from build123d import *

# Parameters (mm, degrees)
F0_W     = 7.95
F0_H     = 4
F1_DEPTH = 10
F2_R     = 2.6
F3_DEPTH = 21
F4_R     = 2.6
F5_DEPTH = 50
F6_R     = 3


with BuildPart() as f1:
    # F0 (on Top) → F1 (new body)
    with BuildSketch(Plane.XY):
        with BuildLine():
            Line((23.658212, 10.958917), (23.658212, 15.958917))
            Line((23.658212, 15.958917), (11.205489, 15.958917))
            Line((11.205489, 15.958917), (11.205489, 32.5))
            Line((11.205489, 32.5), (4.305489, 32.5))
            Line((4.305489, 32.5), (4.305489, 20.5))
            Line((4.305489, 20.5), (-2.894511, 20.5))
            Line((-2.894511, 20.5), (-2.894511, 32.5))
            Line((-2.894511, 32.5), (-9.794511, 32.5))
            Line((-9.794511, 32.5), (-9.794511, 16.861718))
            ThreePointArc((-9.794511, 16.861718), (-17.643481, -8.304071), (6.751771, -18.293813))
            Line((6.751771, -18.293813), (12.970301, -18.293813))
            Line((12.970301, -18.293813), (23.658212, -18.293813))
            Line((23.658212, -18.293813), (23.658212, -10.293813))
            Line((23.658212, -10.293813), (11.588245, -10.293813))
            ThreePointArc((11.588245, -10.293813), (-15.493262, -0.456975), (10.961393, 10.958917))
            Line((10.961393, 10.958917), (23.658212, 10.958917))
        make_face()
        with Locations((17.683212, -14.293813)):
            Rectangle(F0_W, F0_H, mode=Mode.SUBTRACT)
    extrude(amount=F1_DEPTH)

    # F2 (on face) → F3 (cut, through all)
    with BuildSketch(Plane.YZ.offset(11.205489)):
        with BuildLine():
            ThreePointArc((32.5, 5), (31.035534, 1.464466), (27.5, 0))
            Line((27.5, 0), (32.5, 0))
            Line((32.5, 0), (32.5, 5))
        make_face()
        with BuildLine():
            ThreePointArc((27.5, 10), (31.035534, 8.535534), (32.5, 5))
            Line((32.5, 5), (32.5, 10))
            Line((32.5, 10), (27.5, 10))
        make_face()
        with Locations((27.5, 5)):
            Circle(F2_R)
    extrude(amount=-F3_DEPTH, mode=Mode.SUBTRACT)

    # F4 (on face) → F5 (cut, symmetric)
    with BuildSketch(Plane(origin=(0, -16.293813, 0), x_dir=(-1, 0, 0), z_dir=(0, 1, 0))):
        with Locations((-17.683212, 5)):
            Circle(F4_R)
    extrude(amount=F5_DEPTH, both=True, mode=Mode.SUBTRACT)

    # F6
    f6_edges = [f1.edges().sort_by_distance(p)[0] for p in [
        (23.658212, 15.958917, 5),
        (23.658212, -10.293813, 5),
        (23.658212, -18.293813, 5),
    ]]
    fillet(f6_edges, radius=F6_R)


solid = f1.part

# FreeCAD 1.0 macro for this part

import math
import FreeCAD as App
import Part
import Sketcher
from FreeCAD import Vector


def edges_at(feature, points):
    """Names of the edges that pass closest to the given points."""
    edges = feature.Shape.Edges
    near = lambda p: min(range(len(edges)), key=lambda i: edges[i].distToShape(Part.Vertex(*p))[0])
    return sorted({f"Edge{near(p) + 1}" for p in points})


def add_polygon(sketch, points):
    """Adds a closed chain of lines whose ends are joined by coincident constraints."""
    first, n = sketch.GeometryCount, len(points)
    for a, b in zip(points, points[1:] + points[:1]):
        sketch.addGeometry(Part.LineSegment(App.Vector(*a, 0), App.Vector(*b, 0)), False)
    for i in range(n):
        sketch.addConstraint(Sketcher.Constraint("Coincident", first + i, 2, first + (i + 1) % n, 1))

doc = App.newDocument("Part")
params = doc.addObject("Spreadsheet::Sheet", "Params")
for row, (alias, value) in enumerate([
    ("sketch1_radius", "19.5 mm"),
    ("sketch1_radius2", "15.5 mm"),
    ("sketch1_height", "5 mm"),
    ("sketch1_height2", "12 mm"),
    ("sketch1_height3", "8 mm"),
    ("pad1_length", "10 mm"),
    ("sketch2_radius", "5 mm"),
    ("sketch2_diameter", "5.2 mm"),
    ("sketch3_diameter", "5.2 mm"),
    ("pocket2_length", "100 mm"),
    ("fillet_radius", "3 mm"),
], start=1):
    params.set(f"A{row}", alias)
    params.set(f"B{row}", "=" + value)
    params.setAlias(f"B{row}", alias)

body = doc.addObject("PartDesign::Body", "Body")

# Sketch on XY plane
sketch1 = body.newObject("Sketcher::SketchObject", "Sketch")
sketch1.AttachmentSupport = (doc.getObject("XY_Plane"), [""])
sketch1.MapMode = "FlatFace"
sketch1.addGeometry(Part.LineSegment(Vector(23.7, 11, 0), Vector(23.7, 16, 0)), False)  # 0
sketch1.addGeometry(Part.LineSegment(Vector(23.7, 16, 0), Vector(11.2, 16, 0)), False)  # 1
sketch1.addGeometry(Part.LineSegment(Vector(11.2, 16, 0), Vector(11.2, 32.5, 0)), False)  # 2
sketch1.addGeometry(Part.LineSegment(Vector(11.2, 32.5, 0), Vector(4.3, 32.5, 0)), False)  # 3
sketch1.addGeometry(Part.LineSegment(Vector(4.3, 32.5, 0), Vector(4.3, 20.5, 0)), False)  # 4
sketch1.addGeometry(Part.LineSegment(Vector(4.3, 20.5, 0), Vector(-2.9, 20.5, 0)), False)  # 5
sketch1.addGeometry(Part.LineSegment(Vector(-2.9, 20.5, 0), Vector(-2.9, 32.5, 0)), False)  # 6
sketch1.addGeometry(Part.LineSegment(Vector(-2.9, 32.5, 0), Vector(-9.8, 32.5, 0)), False)  # 7
sketch1.addGeometry(Part.LineSegment(Vector(-9.8, 32.5, 0), Vector(-9.8, 16.9, 0)), False)  # 8
sketch1.addGeometry(Part.ArcOfCircle(Part.Circle(Vector(0, 0, 0), Vector(0, 0, 1), 19.5), math.radians(120), math.radians(290)), False)  # 9
sketch1.addGeometry(Part.LineSegment(Vector(6.8, -18.3, 0), Vector(23.7, -18.3, 0)), False)  # 10
sketch1.addGeometry(Part.LineSegment(Vector(23.7, -18.3, 0), Vector(23.7, -10.3, 0)), False)  # 11
sketch1.addGeometry(Part.LineSegment(Vector(23.7, -10.3, 0), Vector(11.6, -10.3, 0)), False)  # 12
sketch1.addGeometry(Part.ArcOfCircle(Part.Circle(Vector(0, 0, 0), Vector(0, 0, 1), 15.5), math.radians(45), math.radians(318)), False)  # 13
sketch1.addGeometry(Part.LineSegment(Vector(11, 11, 0), Vector(23.7, 11, 0)), False)  # 14
add_polygon(sketch1, [(21.7, -16.3), (13.7, -16.3), (13.7, -12.3), (21.7, -12.3)])  # lines 15-18
sketch1.addConstraint([
    Sketcher.Constraint("Coincident", 0, 2, 1, 1),
    Sketcher.Constraint("Coincident", 1, 2, 2, 1),
    Sketcher.Constraint("Coincident", 2, 2, 3, 1),
    Sketcher.Constraint("Coincident", 3, 2, 4, 1),
    Sketcher.Constraint("Coincident", 4, 2, 5, 1),
    Sketcher.Constraint("Coincident", 5, 2, 6, 1),
    Sketcher.Constraint("Coincident", 6, 2, 7, 1),
    Sketcher.Constraint("Coincident", 7, 2, 8, 1),
    Sketcher.Constraint("Coincident", 8, 2, 9, 1),
    Sketcher.Constraint("Coincident", 9, 2, 10, 1),
    Sketcher.Constraint("Coincident", 10, 2, 11, 1),
    Sketcher.Constraint("Coincident", 11, 2, 12, 1),
    Sketcher.Constraint("Coincident", 12, 2, 13, 2),
    Sketcher.Constraint("Coincident", 13, 1, 14, 1),
    Sketcher.Constraint("Coincident", 14, 2, 0, 1),
    Sketcher.Constraint("Vertical", 0),
    Sketcher.Constraint("Horizontal", 1),
    Sketcher.Constraint("Vertical", 2),
    Sketcher.Constraint("Horizontal", 3),
    Sketcher.Constraint("Vertical", 4),
    Sketcher.Constraint("Horizontal", 5),
    Sketcher.Constraint("Vertical", 6),
    Sketcher.Constraint("Horizontal", 7),
    Sketcher.Constraint("Vertical", 8),
    Sketcher.Constraint("Horizontal", 10),
    Sketcher.Constraint("Vertical", 11),
    Sketcher.Constraint("Horizontal", 12),
    Sketcher.Constraint("Horizontal", 14),
    Sketcher.Constraint("Horizontal", 15),
    Sketcher.Constraint("Vertical", 16),
    Sketcher.Constraint("Horizontal", 17),
    Sketcher.Constraint("Vertical", 18),
    Sketcher.Constraint("Coincident", 9, 3, -1, 1),
    Sketcher.Constraint("Coincident", 13, 3, -1, 1),
    Sketcher.Constraint("Horizontal", 3, 2, 6, 2),
    Sketcher.Constraint("Vertical", 0, 2, 10, 2),
    Sketcher.Constraint("Equal", 3, 7),
    Sketcher.Constraint("Radius", 9, 19.5),
    Sketcher.Constraint("Radius", 13, 15.5),
    Sketcher.Constraint("DistanceY", 0, 1, 0, 2, 5.0),
    Sketcher.Constraint("DistanceY", 4, 2, 4, 1, 12.0),
    Sketcher.Constraint("DistanceY", 11, 1, 11, 2, 8.0),
    Sketcher.Constraint("DistanceY", 16, 1, 16, 2, 4.0),
    Sketcher.Constraint("DistanceX", 3, 2, 3, 1, 6.9),
    Sketcher.Constraint("DistanceX", 5, 2, 5, 1, 7.2),
    Sketcher.Constraint("DistanceY", 15, 2, 12, 2, 6.0),
    Sketcher.Constraint("DistanceX", 17, 2, 11, 2, 2.0),
    Sketcher.Constraint("DistanceX", 15, 2, 15, 1, 7.95),
    Sketcher.Constraint("DistanceY", -1, 1, 2, 2, 32.5),
    Sketcher.Constraint("DistanceX", 10, 1, 10, 2, 16.906441),
    Sketcher.Constraint("DistanceX", 14, 1, 14, 2, 12.696819),
    Sketcher.Constraint("DistanceX", 1, 2, 1, 1, 12.452723),
    Sketcher.Constraint("DistanceX", 12, 2, 12, 1, 12.069967),
])
sketch1.setExpression("Constraints[41]", "Params.sketch1_radius")
sketch1.setExpression("Constraints[42]", "Params.sketch1_radius2")
sketch1.setExpression("Constraints[43]", "Params.sketch1_height")
sketch1.setExpression("Constraints[44]", "Params.sketch1_height2")
sketch1.setExpression("Constraints[45]", "Params.sketch1_height3")
pad1 = body.newObject("PartDesign::Pad", "Pad")
pad1.Profile = sketch1
pad1.setExpression("Length", "Params.pad1_length")

# Sketch on YZ plane
sketch2 = body.newObject("Sketcher::SketchObject", "Sketch001")
sketch2.AttachmentSupport = (doc.getObject("YZ_Plane"), [""])
sketch2.MapMode = "FlatFace"
sketch2.AttachmentOffset = App.Placement(Vector(0, 0, 11.205489), App.Rotation())
sketch2.addGeometry([
    Part.ArcOfCircle(Part.Circle(Vector(27.5, 5, 0), Vector(0, 0, 1), 5), math.radians(-90), math.radians(0)),  # 0
    Part.LineSegment(Vector(27.5, 0, 0), Vector(32.5, 0, 0)),  # 1
    Part.LineSegment(Vector(32.5, 0, 0), Vector(32.5, 5, 0)),  # 2
    Part.ArcOfCircle(Part.Circle(Vector(27.5, 5, 0), Vector(0, 0, 1), 5), math.radians(0), math.radians(90)),  # 3
    Part.LineSegment(Vector(32.5, 5, 0), Vector(32.5, 10, 0)),  # 4
    Part.LineSegment(Vector(32.5, 10, 0), Vector(27.5, 10, 0)),  # 5
    Part.Circle(Vector(27.5, 5, 0), Vector(0, 0, 1), 2.6),  # 6
], False)
sketch2.addConstraint([
    Sketcher.Constraint("Tangent", 0, 1, 1, 1),
    Sketcher.Constraint("Coincident", 1, 2, 2, 1),
    Sketcher.Constraint("Tangent", 2, 2, 0, 2),
    Sketcher.Constraint("Tangent", 3, 1, 4, 1),
    Sketcher.Constraint("Coincident", 4, 2, 5, 1),
    Sketcher.Constraint("Tangent", 5, 2, 3, 2),
    Sketcher.Constraint("Horizontal", 1),
    Sketcher.Constraint("Vertical", 2),
    Sketcher.Constraint("Vertical", 4),
    Sketcher.Constraint("Horizontal", 5),
    Sketcher.Constraint("Coincident", 3, 3, 0, 3),
    Sketcher.Constraint("Coincident", 6, 3, 0, 3),
    Sketcher.Constraint("Equal", 0, 3),
    Sketcher.Constraint("PointOnObject", 0, 1, -1),
    Sketcher.Constraint("Radius", 0, 5.0),
    Sketcher.Constraint("Diameter", 6, 5.2),
    Sketcher.Constraint("DistanceX", -1, 1, 0, 3, 27.5),
])
sketch2.setExpression("Constraints[14]", "Params.sketch2_radius")
sketch2.setExpression("Constraints[15]", "Params.sketch2_diameter")
pocket1 = body.newObject("PartDesign::Pocket", "Pocket")
pocket1.Profile = sketch2
pocket1.Type = "ThroughAll"

# Sketch on XZ plane
sketch3 = body.newObject("Sketcher::SketchObject", "Sketch002")
sketch3.AttachmentSupport = (doc.getObject("XZ_Plane"), [""])
sketch3.MapMode = "FlatFace"
sketch3.AttachmentOffset = App.Placement(Vector(0, 0, 16.293813), App.Rotation())
sketch3.addGeometry(Part.Circle(Vector(17.7, 5, 0), Vector(0, 0, 1), 2.6), False)
sketch3.addConstraint([
    Sketcher.Constraint("Diameter", 0, 5.2),
    Sketcher.Constraint("DistanceY", -1, 1, 0, 3, 5.0),
    Sketcher.Constraint("DistanceX", -1, 1, 0, 3, 17.683212),
])
sketch3.setExpression("Constraints[0]", "Params.sketch3_diameter")
pocket2 = body.newObject("PartDesign::Pocket", "Pocket001")
pocket2.Profile = sketch3
pocket2.setExpression("Length", "Params.pocket2_length")
pocket2.Midplane = True
doc.recompute()

fillet = body.newObject("PartDesign::Fillet", "Fillet")
fillet.Base = (pocket2, edges_at(pocket2, [(23.658, 15.959, 5), (23.658, -10.294, 5), (23.658, -18.294, 5)]))
fillet.setExpression("Radius", "Params.fillet_radius")

doc.recompute()
